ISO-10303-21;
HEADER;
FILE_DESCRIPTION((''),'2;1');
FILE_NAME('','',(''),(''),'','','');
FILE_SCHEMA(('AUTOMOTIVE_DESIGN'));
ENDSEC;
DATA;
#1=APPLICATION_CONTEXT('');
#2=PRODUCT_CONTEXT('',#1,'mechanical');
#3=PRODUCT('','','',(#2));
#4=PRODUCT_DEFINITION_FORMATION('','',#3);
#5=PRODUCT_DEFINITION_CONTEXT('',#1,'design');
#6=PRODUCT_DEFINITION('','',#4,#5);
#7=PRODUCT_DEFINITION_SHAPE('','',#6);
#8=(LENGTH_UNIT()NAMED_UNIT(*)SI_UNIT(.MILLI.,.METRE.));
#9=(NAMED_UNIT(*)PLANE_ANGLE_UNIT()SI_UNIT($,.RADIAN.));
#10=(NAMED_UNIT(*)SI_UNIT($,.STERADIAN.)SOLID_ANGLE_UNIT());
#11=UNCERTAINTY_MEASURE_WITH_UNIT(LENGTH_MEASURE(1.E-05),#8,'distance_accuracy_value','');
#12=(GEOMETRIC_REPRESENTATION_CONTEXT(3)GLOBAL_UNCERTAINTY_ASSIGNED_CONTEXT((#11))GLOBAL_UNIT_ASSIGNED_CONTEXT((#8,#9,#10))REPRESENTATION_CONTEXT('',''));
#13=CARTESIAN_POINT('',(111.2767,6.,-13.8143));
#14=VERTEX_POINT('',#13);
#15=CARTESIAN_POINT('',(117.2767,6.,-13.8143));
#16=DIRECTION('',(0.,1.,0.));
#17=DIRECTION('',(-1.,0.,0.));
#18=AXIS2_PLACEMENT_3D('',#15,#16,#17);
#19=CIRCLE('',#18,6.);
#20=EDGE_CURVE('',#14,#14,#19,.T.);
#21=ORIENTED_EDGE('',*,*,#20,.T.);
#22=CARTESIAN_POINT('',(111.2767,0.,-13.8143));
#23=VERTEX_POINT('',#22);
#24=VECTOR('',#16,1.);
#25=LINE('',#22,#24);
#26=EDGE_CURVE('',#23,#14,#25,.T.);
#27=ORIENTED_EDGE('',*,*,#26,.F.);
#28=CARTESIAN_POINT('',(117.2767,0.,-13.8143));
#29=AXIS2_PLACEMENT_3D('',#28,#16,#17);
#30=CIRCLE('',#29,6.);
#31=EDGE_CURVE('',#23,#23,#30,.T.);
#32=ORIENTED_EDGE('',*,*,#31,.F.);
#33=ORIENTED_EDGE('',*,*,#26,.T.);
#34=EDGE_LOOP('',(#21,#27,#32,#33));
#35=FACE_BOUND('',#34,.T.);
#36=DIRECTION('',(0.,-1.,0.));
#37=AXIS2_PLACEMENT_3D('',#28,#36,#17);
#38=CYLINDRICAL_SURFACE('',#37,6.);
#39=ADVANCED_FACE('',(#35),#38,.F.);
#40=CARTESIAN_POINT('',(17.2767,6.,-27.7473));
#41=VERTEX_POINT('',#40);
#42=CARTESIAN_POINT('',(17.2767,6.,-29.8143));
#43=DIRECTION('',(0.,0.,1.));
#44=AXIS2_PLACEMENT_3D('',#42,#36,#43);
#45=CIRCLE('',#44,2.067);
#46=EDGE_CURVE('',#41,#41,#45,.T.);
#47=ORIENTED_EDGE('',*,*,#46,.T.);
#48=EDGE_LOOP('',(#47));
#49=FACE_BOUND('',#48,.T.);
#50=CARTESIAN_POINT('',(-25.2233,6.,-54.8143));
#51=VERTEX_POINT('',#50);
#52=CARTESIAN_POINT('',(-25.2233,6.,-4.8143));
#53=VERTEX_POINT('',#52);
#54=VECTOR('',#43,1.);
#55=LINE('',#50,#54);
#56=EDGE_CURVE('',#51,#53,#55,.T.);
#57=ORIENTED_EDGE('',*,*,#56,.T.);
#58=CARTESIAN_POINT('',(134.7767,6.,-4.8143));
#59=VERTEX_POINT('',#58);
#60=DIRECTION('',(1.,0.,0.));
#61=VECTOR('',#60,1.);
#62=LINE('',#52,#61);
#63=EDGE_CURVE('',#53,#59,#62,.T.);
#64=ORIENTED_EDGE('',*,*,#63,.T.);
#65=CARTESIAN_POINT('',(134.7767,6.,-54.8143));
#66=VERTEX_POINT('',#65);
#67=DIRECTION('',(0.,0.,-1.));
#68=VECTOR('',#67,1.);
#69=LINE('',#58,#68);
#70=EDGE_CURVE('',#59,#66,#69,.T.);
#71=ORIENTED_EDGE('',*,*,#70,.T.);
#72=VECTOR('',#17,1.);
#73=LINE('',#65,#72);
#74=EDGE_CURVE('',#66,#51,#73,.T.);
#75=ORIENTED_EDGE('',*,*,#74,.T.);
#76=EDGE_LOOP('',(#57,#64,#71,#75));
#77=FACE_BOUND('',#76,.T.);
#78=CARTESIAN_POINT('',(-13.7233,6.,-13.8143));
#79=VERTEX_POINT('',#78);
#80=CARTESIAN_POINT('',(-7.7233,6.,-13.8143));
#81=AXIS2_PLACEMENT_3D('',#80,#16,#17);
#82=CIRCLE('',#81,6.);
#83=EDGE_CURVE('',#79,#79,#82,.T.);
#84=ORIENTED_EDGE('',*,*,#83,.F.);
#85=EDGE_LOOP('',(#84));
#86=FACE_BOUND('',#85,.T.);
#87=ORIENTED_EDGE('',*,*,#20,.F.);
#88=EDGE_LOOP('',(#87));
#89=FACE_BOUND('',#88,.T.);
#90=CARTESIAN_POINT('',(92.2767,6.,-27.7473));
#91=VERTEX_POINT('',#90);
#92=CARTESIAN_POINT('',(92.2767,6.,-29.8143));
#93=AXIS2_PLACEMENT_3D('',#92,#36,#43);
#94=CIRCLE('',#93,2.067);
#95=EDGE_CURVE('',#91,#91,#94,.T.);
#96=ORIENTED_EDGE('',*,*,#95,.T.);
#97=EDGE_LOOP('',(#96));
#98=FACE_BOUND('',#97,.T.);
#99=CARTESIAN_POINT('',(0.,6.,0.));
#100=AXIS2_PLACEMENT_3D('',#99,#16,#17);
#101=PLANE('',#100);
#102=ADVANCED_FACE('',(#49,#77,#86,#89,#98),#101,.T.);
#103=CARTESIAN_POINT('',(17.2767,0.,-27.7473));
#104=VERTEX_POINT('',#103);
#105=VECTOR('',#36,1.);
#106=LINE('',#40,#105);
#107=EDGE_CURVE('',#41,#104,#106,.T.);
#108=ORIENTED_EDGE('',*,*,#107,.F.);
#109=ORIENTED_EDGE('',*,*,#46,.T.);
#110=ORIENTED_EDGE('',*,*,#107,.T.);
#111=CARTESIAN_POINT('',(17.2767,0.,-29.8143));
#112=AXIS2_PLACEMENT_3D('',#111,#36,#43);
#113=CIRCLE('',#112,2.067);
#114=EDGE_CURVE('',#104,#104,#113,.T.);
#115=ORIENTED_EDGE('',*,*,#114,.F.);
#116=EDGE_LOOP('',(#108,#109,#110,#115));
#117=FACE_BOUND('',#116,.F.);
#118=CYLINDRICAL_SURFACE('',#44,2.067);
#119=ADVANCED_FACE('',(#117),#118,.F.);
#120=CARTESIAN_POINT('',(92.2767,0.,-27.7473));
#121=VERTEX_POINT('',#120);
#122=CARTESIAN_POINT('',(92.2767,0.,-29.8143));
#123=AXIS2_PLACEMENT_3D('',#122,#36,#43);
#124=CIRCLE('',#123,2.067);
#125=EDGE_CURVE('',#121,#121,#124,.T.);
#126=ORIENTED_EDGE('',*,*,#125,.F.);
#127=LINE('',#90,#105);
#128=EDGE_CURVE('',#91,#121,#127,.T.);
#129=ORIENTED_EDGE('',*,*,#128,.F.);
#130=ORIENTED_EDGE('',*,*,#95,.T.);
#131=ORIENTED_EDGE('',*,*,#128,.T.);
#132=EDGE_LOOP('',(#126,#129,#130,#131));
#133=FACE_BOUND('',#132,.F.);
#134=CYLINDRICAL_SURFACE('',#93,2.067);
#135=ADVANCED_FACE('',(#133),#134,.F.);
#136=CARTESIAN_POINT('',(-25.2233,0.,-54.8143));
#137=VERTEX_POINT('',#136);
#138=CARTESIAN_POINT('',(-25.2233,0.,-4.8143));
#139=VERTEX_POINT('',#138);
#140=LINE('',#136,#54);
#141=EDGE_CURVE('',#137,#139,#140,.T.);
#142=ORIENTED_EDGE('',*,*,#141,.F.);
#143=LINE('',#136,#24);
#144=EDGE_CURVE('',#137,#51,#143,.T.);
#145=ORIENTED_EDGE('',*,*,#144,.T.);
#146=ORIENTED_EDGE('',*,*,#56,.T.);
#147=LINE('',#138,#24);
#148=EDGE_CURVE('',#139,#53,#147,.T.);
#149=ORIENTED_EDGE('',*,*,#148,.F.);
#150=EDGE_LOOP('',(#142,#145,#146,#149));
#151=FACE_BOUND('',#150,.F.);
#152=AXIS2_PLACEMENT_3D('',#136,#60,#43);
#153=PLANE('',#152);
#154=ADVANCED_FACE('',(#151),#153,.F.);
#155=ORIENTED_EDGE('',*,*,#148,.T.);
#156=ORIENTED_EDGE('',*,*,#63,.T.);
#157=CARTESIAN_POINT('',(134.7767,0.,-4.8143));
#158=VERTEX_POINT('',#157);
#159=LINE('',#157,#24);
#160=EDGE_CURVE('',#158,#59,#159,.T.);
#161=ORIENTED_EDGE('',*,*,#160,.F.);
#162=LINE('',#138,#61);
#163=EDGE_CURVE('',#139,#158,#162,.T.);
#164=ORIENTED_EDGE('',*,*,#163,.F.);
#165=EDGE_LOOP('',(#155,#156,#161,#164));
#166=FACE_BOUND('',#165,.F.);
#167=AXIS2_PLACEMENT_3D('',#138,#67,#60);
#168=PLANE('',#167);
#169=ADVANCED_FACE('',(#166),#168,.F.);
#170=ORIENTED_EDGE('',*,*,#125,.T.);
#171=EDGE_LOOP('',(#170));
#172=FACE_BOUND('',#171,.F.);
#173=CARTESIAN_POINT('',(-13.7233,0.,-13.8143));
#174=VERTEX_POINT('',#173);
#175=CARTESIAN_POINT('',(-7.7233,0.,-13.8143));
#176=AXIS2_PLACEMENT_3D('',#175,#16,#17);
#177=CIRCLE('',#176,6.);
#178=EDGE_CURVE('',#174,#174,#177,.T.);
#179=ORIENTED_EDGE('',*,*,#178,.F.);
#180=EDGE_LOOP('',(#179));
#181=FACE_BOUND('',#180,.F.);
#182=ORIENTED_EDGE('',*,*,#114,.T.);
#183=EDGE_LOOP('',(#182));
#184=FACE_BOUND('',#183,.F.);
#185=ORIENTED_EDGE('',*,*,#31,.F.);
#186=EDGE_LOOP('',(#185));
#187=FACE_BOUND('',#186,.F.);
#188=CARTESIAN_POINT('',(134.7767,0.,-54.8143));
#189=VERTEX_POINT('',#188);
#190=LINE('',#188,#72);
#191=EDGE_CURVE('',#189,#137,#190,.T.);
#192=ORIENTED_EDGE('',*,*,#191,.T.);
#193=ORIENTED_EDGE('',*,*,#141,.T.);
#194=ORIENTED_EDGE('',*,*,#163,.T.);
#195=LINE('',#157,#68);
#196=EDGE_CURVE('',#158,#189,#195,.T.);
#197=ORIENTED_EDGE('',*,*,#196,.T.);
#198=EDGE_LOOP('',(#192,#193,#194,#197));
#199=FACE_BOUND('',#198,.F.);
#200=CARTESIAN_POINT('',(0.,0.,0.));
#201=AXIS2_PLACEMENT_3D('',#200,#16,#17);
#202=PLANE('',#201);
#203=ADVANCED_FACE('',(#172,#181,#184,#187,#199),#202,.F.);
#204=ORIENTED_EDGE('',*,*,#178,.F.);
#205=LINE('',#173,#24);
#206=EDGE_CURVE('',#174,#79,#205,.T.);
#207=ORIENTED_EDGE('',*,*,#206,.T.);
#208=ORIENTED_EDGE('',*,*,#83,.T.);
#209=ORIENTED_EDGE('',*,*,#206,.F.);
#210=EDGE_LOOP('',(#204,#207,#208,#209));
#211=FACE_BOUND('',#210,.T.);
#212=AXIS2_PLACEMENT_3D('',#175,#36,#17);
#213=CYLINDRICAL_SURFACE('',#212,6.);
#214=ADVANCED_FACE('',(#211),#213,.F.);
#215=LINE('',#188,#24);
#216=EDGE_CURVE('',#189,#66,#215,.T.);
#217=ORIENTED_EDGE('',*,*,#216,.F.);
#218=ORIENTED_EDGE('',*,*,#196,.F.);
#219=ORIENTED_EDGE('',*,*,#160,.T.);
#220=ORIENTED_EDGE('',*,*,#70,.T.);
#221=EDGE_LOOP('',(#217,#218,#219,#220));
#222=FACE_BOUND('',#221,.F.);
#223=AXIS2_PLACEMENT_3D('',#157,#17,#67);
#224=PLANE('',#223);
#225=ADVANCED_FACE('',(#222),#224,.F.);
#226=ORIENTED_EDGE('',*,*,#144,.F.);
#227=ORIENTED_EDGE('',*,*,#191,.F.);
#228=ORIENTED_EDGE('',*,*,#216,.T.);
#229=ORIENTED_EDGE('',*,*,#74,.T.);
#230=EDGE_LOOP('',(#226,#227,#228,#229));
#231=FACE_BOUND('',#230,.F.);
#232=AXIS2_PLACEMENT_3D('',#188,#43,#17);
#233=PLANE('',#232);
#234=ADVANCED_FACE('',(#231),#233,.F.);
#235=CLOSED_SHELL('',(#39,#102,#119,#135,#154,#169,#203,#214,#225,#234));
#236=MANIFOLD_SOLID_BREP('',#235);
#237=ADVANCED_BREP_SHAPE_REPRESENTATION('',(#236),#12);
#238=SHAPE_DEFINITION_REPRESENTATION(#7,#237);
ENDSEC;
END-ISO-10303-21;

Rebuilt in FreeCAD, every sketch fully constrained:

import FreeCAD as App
import Part
import Sketcher


def add_polygon(sketch, points):
    """Adds a closed chain of lines whose ends are joined by coincident constraints."""
    first, n = sketch.GeometryCount, len(points)
    for a, b in zip(points, points[1:] + points[:1]):
        sketch.addGeometry(Part.LineSegment(App.Vector(*a, 0), App.Vector(*b, 0)), False)
    for i in range(n):
        sketch.addConstraint(Sketcher.Constraint("Coincident", first + i, 2, first + (i + 1) % n, 1))

doc = App.newDocument("Part")
body = doc.addObject("PartDesign::Body", "Body")

# Sketch on XZ plane
sketch1 = body.newObject("Sketcher::SketchObject", "Sketch")
sketch1.AttachmentSupport = (doc.getObject("XZ_Plane"), [""])
sketch1.MapMode = "FlatFace"
add_polygon(sketch1, [(-25, -55), (-25, -5), (135, -5), (135, -55)])  # lines 0-3
sketch1.addGeometry(Part.Circle(App.Vector(117, -14, 0), App.Vector(0, 0, 1), 6), False)  # 4
sketch1.addGeometry(Part.Circle(App.Vector(-8, -14, 0), App.Vector(0, 0, 1), 6), False)  # 5
sketch1.addConstraint([
    Sketcher.Constraint("Vertical", 0),
    Sketcher.Constraint("Horizontal", 1),
    Sketcher.Constraint("Vertical", 2),
    Sketcher.Constraint("Horizontal", 3),
    Sketcher.Constraint("Equal", 4, 5),
    Sketcher.Constraint("Horizontal", 4, 3, 5, 3),
    Sketcher.Constraint("Diameter", 4, 12.0),
    Sketcher.Constraint("DistanceX", 1, 1, 1, 2, 160.0),
    Sketcher.Constraint("DistanceY", 0, 1, 0, 2, 50.0),
    Sketcher.Constraint("DistanceX", 5, 3, 4, 3, 125.0),
    Sketcher.Constraint("DistanceY", 5, 3, 0, 2, 9.0),
    Sketcher.Constraint("DistanceX", 0, 2, 5, 3, 17.5),
    Sketcher.Constraint("DistanceX", -1, 1, 4, 3, 117.2767),
    Sketcher.Constraint("DistanceY", 4, 3, -1, 1, 13.8143),
])
pad1 = body.newObject("PartDesign::Pad", "Pad")
pad1.Profile = sketch1
pad1.Length = 6
pad1.Reversed = True

# Sketch on XZ plane
sketch2 = body.newObject("Sketcher::SketchObject", "Sketch001")
sketch2.AttachmentSupport = (doc.getObject("XZ_Plane"), [""])
sketch2.MapMode = "FlatFace"
sketch2.AttachmentOffset = App.Placement(App.Vector(0, 0, -6), App.Rotation())
sketch2.addGeometry([
    Part.Circle(App.Vector(92.3, -29.8, 0), App.Vector(0, 0, 1), 2.1),
    Part.Circle(App.Vector(17.3, -29.8, 0), App.Vector(0, 0, 1), 2.1),
], False)
sketch2.addConstraint([
    Sketcher.Constraint("Equal", 0, 1),
    Sketcher.Constraint("Horizontal", 0, 3, 1, 3),
    Sketcher.Constraint("Diameter", 0, 4.134),
    Sketcher.Constraint("DistanceX", 1, 3, 0, 3, 75.0),
    Sketcher.Constraint("DistanceX", -1, 1, 0, 3, 92.2767),
    Sketcher.Constraint("DistanceY", 0, 3, -1, 1, 29.8143),
])
doc.recompute()
hole = body.newObject("PartDesign::Hole", "Hole")
hole.Profile = sketch2
hole.ThreadType = "None"
hole.Diameter = 4.134
hole.DepthType = "Dimension"
hole.Depth = 6
hole.DrillPoint = "Flat"
hole.Reversed = True

doc.recompute()
